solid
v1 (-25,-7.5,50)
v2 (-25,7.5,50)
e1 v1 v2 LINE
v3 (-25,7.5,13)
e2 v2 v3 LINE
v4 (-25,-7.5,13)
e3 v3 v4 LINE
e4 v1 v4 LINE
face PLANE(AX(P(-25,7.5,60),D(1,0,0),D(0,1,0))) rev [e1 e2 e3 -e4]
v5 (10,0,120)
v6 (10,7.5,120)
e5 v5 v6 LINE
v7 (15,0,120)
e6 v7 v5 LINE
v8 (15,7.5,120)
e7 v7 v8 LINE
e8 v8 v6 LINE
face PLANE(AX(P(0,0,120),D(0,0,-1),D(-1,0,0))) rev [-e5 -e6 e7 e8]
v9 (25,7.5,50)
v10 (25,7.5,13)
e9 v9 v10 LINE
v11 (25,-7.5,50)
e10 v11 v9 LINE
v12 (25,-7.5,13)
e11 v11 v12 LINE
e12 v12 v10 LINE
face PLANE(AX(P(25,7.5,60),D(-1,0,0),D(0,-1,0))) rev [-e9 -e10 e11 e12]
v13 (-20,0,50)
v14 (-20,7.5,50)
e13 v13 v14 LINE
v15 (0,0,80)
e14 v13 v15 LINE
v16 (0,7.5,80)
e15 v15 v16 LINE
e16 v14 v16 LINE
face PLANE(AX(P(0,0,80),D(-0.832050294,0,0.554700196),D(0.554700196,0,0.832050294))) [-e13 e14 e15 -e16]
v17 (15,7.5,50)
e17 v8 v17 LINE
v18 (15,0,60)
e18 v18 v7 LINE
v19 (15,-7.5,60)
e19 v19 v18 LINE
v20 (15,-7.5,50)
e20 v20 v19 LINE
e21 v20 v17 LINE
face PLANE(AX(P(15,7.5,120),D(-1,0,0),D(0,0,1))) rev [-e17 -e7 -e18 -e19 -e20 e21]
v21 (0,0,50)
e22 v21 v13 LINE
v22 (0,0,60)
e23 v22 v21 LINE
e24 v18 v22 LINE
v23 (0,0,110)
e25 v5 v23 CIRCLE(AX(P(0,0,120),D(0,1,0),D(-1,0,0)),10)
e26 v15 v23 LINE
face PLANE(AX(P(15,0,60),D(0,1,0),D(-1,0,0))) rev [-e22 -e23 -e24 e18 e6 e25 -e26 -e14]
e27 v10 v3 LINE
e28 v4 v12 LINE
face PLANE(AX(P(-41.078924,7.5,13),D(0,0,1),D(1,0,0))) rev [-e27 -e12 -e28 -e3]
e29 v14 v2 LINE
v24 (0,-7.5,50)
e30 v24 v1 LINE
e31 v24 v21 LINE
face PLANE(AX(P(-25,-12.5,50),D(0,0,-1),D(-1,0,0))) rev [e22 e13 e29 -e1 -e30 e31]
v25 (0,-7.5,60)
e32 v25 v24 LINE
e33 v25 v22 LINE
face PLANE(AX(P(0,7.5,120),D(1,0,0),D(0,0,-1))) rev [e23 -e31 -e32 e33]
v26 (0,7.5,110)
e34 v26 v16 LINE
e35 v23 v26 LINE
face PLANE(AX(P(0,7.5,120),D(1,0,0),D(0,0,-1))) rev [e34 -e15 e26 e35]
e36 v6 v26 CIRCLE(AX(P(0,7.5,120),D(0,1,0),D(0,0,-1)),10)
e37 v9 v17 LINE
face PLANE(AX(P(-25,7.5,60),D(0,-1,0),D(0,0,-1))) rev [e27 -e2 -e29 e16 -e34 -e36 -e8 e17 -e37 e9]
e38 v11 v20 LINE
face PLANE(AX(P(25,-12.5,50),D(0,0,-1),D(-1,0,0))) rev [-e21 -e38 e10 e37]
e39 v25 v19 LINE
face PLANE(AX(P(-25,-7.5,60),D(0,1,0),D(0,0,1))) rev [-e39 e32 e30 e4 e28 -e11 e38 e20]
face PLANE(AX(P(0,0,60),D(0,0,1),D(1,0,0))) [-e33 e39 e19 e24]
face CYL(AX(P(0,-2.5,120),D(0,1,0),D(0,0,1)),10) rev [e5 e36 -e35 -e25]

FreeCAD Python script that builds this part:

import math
import FreeCAD as App
import Part
import Sketcher

V = App.Vector
Q = App.Units.Quantity


def add_polygon(sketch, points):
    """Adds a closed chain of lines whose ends are joined by coincident constraints."""
    first, n = sketch.GeometryCount, len(points)
    for a, b in zip(points, points[1:] + points[:1]):
        sketch.addGeometry(Part.LineSegment(App.Vector(*a, 0), App.Vector(*b, 0)), False)
    for i in range(n):
        sketch.addConstraint(Sketcher.Constraint("Coincident", first + i, 2, first + (i + 1) % n, 1))

doc = App.newDocument("Part")
params = doc.addObject("Spreadsheet::Sheet", "Params")
for row, (alias, value) in enumerate([
    ("sketch1_width", "50 mm"),
    ("sketch1_height", "15 mm"),
    ("pad1_length", "60 mm"),
    ("sketch2_width", "15 mm"),
    ("pad2_length", "60 mm"),
    ("sketch3_width", "15 mm"),
    ("sketch3_height", "7.5 mm"),
    ("pocket1_length", "60 mm"),
    ("sketch4_radius", "10 mm"),
    ("pocket2_length", "10 mm"),
    ("sketch5_width", "10 mm"),
    ("sketch5_width2", "25 mm"),
    ("pocket3_length", "20 mm"),
    ("sketch6_width", "20 mm"),
    ("sketch6_height", "30 mm"),
    ("pad3_length", "7.5 mm"),
    ("sketch7_height", "26 mm"),
], start=1):
    params.set(f"A{row}", alias)
    params.set(f"B{row}", "=" + value)
    params.setAlias(f"B{row}", alias)

body = doc.addObject("PartDesign::Body", "Body")

# Sketch on XY plane
sketch1 = body.newObject("Sketcher::SketchObject", "Sketch")
sketch1.AttachmentSupport = (doc.getObject("XY_Plane"), [""])
sketch1.MapMode = "FlatFace"
add_polygon(sketch1, [(-25, 8), (-25, -8), (25, -8), (25, 8)])  # lines 0-3
sketch1.addConstraint(Sketcher.Constraint("Vertical", 0))
sketch1.addConstraint(Sketcher.Constraint("Horizontal", 1))
sketch1.addConstraint(Sketcher.Constraint("Vertical", 2))
sketch1.addConstraint(Sketcher.Constraint("Horizontal", 3))
sketch1.addConstraint(Sketcher.Constraint("Symmetric", 0, 2, 2, 2, -1, 1))
sketch1.addConstraint(Sketcher.Constraint("DistanceX", 1, 1, 1, 2, Q("50 mm")))
sketch1.addConstraint(Sketcher.Constraint("DistanceY", 0, 2, 0, 1, Q("15 mm")))
sketch1.setExpression("Constraints[9]", "Params.sketch1_width")
sketch1.setExpression("Constraints[10]", "Params.sketch1_height")
pad1 = body.newObject("PartDesign::Pad", "Pad")
pad1.Profile = sketch1
pad1.setExpression("Length", "Params.pad1_length")

# Sketch on XY plane
sketch2 = body.newObject("Sketcher::SketchObject", "Sketch001")
sketch2.AttachmentSupport = (doc.getObject("XY_Plane"), [""])
sketch2.MapMode = "FlatFace"
sketch2.AttachmentOffset = App.Placement(V(0, 0, 60), App.Rotation())
add_polygon(sketch2, [(0, 8), (0, -8), (15, -8), (15, 8)])  # lines 0-3
sketch2.addConstraint(Sketcher.Constraint("Vertical", 0))
sketch2.addConstraint(Sketcher.Constraint("Horizontal", 1))
sketch2.addConstraint(Sketcher.Constraint("Vertical", 2))
sketch2.addConstraint(Sketcher.Constraint("Horizontal", 3))
sketch2.addConstraint(Sketcher.Constraint("Symmetric", 0, 2, 3, 2, -1, 1))
sketch2.addConstraint(Sketcher.Constraint("Equal", 3, 0))
sketch2.addConstraint(Sketcher.Constraint("DistanceX", 1, 1, 1, 2, Q("15 mm")))
sketch2.setExpression("Constraints[10]", "Params.sketch2_width")
pad2 = body.newObject("PartDesign::Pad", "Pad001")
pad2.Profile = sketch2
pad2.setExpression("Length", "Params.pad2_length")

# Sketch on XY plane
sketch3 = body.newObject("Sketcher::SketchObject", "Sketch002")
sketch3.AttachmentSupport = (doc.getObject("XY_Plane"), [""])
sketch3.MapMode = "FlatFace"
sketch3.AttachmentOffset = App.Placement(V(0, 0, 120), App.Rotation())
add_polygon(sketch3, [(0, 0), (0, -8), (15, -8), (15, 0)])  # lines 0-3
sketch3.addConstraint(Sketcher.Constraint("Vertical", 0))
sketch3.addConstraint(Sketcher.Constraint("Horizontal", 1))
sketch3.addConstraint(Sketcher.Constraint("Vertical", 2))
sketch3.addConstraint(Sketcher.Constraint("Horizontal", 3))
sketch3.addConstraint(Sketcher.Constraint("Coincident", 3, 2, -1, 1))
sketch3.addConstraint(Sketcher.Constraint("DistanceX", 1, 1, 1, 2, Q("15 mm")))
sketch3.addConstraint(Sketcher.Constraint("DistanceY", 0, 2, 0, 1, Q("7.5 mm")))
sketch3.setExpression("Constraints[9]", "Params.sketch3_width")
sketch3.setExpression("Constraints[10]", "Params.sketch3_height")
pocket1 = body.newObject("PartDesign::Pocket", "Pocket")
pocket1.Profile = sketch3
pocket1.setExpression("Length", "Params.pocket1_length")

# Sketch on XZ plane
sketch4 = body.newObject("Sketcher::SketchObject", "Sketch003")
sketch4.AttachmentSupport = (doc.getObject("XZ_Plane"), [""])
sketch4.MapMode = "FlatFace"
sketch4.AttachmentOffset = App.Placement(V(0, 0, -7.5), App.Rotation())
sketch4.addGeometry(Part.LineSegment(V(0, 110, 0), V(0, 120, 0)), False)
sketch4.addGeometry(Part.LineSegment(V(0, 120, 0), V(10, 120, 0)), False)
sketch4.addGeometry(Part.ArcOfCircle(Part.Circle(V(0, 120, 0), V(0, 0, 1), 10), math.radians(-90), math.radians(0)), False)
sketch4.addConstraint(Sketcher.Constraint("Coincident", 0, 2, 1, 1))
sketch4.addConstraint(Sketcher.Constraint("Coincident", 1, 2, 2, 2))
sketch4.addConstraint(Sketcher.Constraint("Coincident", 2, 1, 0, 1))
sketch4.addConstraint(Sketcher.Constraint("Vertical", 0))
sketch4.addConstraint(Sketcher.Constraint("Horizontal", 1))
sketch4.addConstraint(Sketcher.Constraint("Coincident", 0, 2, 2, 3))
sketch4.addConstraint(Sketcher.Constraint("PointOnObject", 2, 3, -2))
sketch4.addConstraint(Sketcher.Constraint("Radius", 2, Q("10 mm")))
sketch4.addConstraint(Sketcher.Constraint("DistanceY", -1, 1, 2, 3, Q("120 mm")))
sketch4.setExpression("Constraints[7]", "Params.sketch4_radius")
pocket2 = body.newObject("PartDesign::Pocket", "Pocket001")
pocket2.Profile = sketch4
pocket2.setExpression("Length", "Params.pocket2_length")
pocket2.Reversed = True

# Sketch on XZ plane
sketch5 = body.newObject("Sketcher::SketchObject", "Sketch004")
sketch5.AttachmentSupport = (doc.getObject("XZ_Plane"), [""])
sketch5.MapMode = "FlatFace"
sketch5.AttachmentOffset = App.Placement(V(0, 0, -7.5), App.Rotation())
add_polygon(sketch5, [(15, 50), (15, 60), (25, 60), (25, 50)])  # lines 0-3
add_polygon(sketch5, [(-25, 50), (-25, 60), (0, 60), (0, 50)])  # lines 4-7
sketch5.addConstraint(Sketcher.Constraint("Vertical", 0))
sketch5.addConstraint(Sketcher.Constraint("Horizontal", 1))
sketch5.addConstraint(Sketcher.Constraint("Vertical", 2))
sketch5.addConstraint(Sketcher.Constraint("Horizontal", 3))
sketch5.addConstraint(Sketcher.Constraint("Vertical", 4))
sketch5.addConstraint(Sketcher.Constraint("Horizontal", 5))
sketch5.addConstraint(Sketcher.Constraint("Vertical", 6))
sketch5.addConstraint(Sketcher.Constraint("Horizontal", 7))
sketch5.addConstraint(Sketcher.Constraint("Symmetric", 1, 2, 4, 2, -2))
sketch5.addConstraint(Sketcher.Constraint("PointOnObject", 5, 2, -2))
sketch5.addConstraint(Sketcher.Constraint("Horizontal", 3, 2, 6, 2))
sketch5.addConstraint(Sketcher.Constraint("Equal", 3, 0))
sketch5.addConstraint(Sketcher.Constraint("DistanceX", 1, 1, 1, 2, Q("10 mm")))
sketch5.addConstraint(Sketcher.Constraint("DistanceX", 5, 1, 5, 2, Q("25 mm")))
sketch5.addConstraint(Sketcher.Constraint("DistanceY", -1, 1, 0, 2, Q("60 mm")))
sketch5.setExpression("Constraints[20]", "Params.sketch5_width")
sketch5.setExpression("Constraints[21]", "Params.sketch5_width2")
pocket3 = body.newObject("PartDesign::Pocket", "Pocket002")
pocket3.Profile = sketch5
pocket3.setExpression("Length", "Params.pocket3_length")
pocket3.Reversed = True

# Sketch on XZ plane
sketch6 = body.newObject("Sketcher::SketchObject", "Sketch005")
sketch6.AttachmentSupport = (doc.getObject("XZ_Plane"), [""])
sketch6.MapMode = "FlatFace"
sketch6.AttachmentOffset = App.Placement(V(0, 0, -7.5), App.Rotation())
add_polygon(sketch6, [(0, 80), (0, 50), (-20, 50)])  # lines 0-2
sketch6.addConstraint(Sketcher.Constraint("Vertical", 0))
sketch6.addConstraint(Sketcher.Constraint("Horizontal", 1))
sketch6.addConstraint(Sketcher.Constraint("PointOnObject", 0, 2, -2))
sketch6.addConstraint(Sketcher.Constraint("DistanceX", 1, 2, 1, 1, Q("20 mm")))
sketch6.addConstraint(Sketcher.Constraint("DistanceY", 0, 2, 0, 1, Q("30 mm")))
sketch6.addConstraint(Sketcher.Constraint("DistanceY", -1, 1, 0, 2, Q("50 mm")))
sketch6.setExpression("Constraints[6]", "Params.sketch6_width")
sketch6.setExpression("Constraints[7]", "Params.sketch6_height")
pad3 = body.newObject("PartDesign::Pad", "Pad002")
pad3.Profile = sketch6
pad3.setExpression("Length", "Params.pad3_length")

# Sketch on XZ plane
sketch7 = body.newObject("Sketcher::SketchObject", "Sketch006")
sketch7.AttachmentSupport = (doc.getObject("XZ_Plane"), [""])
sketch7.MapMode = "FlatFace"
sketch7.AttachmentOffset = App.Placement(V(0, 0, 7.5), App.Rotation())
add_polygon(sketch7, [(-41, 13), (-41, -13), (41, -13), (41, 13)])  # lines 0-3
sketch7.addConstraint(Sketcher.Constraint("Vertical", 0))
sketch7.addConstraint(Sketcher.Constraint("Horizontal", 1))
sketch7.addConstraint(Sketcher.Constraint("Vertical", 2))
sketch7.addConstraint(Sketcher.Constraint("Horizontal", 3))
sketch7.addConstraint(Sketcher.Constraint("Symmetric", 0, 2, 2, 2, -1, 1))
sketch7.addConstraint(Sketcher.Constraint("DistanceY", 0, 2, 0, 1, Q("26 mm")))
sketch7.addConstraint(Sketcher.Constraint("DistanceX", 1, 1, 1, 2, Q("82.157849 mm")))
sketch7.setExpression("Constraints[9]", "Params.sketch7_height")
pocket4 = body.newObject("PartDesign::Pocket", "Pocket003")
pocket4.Profile = sketch7
pocket4.Type = "ThroughAll"
pocket4.Midplane = True

doc.recompute()
